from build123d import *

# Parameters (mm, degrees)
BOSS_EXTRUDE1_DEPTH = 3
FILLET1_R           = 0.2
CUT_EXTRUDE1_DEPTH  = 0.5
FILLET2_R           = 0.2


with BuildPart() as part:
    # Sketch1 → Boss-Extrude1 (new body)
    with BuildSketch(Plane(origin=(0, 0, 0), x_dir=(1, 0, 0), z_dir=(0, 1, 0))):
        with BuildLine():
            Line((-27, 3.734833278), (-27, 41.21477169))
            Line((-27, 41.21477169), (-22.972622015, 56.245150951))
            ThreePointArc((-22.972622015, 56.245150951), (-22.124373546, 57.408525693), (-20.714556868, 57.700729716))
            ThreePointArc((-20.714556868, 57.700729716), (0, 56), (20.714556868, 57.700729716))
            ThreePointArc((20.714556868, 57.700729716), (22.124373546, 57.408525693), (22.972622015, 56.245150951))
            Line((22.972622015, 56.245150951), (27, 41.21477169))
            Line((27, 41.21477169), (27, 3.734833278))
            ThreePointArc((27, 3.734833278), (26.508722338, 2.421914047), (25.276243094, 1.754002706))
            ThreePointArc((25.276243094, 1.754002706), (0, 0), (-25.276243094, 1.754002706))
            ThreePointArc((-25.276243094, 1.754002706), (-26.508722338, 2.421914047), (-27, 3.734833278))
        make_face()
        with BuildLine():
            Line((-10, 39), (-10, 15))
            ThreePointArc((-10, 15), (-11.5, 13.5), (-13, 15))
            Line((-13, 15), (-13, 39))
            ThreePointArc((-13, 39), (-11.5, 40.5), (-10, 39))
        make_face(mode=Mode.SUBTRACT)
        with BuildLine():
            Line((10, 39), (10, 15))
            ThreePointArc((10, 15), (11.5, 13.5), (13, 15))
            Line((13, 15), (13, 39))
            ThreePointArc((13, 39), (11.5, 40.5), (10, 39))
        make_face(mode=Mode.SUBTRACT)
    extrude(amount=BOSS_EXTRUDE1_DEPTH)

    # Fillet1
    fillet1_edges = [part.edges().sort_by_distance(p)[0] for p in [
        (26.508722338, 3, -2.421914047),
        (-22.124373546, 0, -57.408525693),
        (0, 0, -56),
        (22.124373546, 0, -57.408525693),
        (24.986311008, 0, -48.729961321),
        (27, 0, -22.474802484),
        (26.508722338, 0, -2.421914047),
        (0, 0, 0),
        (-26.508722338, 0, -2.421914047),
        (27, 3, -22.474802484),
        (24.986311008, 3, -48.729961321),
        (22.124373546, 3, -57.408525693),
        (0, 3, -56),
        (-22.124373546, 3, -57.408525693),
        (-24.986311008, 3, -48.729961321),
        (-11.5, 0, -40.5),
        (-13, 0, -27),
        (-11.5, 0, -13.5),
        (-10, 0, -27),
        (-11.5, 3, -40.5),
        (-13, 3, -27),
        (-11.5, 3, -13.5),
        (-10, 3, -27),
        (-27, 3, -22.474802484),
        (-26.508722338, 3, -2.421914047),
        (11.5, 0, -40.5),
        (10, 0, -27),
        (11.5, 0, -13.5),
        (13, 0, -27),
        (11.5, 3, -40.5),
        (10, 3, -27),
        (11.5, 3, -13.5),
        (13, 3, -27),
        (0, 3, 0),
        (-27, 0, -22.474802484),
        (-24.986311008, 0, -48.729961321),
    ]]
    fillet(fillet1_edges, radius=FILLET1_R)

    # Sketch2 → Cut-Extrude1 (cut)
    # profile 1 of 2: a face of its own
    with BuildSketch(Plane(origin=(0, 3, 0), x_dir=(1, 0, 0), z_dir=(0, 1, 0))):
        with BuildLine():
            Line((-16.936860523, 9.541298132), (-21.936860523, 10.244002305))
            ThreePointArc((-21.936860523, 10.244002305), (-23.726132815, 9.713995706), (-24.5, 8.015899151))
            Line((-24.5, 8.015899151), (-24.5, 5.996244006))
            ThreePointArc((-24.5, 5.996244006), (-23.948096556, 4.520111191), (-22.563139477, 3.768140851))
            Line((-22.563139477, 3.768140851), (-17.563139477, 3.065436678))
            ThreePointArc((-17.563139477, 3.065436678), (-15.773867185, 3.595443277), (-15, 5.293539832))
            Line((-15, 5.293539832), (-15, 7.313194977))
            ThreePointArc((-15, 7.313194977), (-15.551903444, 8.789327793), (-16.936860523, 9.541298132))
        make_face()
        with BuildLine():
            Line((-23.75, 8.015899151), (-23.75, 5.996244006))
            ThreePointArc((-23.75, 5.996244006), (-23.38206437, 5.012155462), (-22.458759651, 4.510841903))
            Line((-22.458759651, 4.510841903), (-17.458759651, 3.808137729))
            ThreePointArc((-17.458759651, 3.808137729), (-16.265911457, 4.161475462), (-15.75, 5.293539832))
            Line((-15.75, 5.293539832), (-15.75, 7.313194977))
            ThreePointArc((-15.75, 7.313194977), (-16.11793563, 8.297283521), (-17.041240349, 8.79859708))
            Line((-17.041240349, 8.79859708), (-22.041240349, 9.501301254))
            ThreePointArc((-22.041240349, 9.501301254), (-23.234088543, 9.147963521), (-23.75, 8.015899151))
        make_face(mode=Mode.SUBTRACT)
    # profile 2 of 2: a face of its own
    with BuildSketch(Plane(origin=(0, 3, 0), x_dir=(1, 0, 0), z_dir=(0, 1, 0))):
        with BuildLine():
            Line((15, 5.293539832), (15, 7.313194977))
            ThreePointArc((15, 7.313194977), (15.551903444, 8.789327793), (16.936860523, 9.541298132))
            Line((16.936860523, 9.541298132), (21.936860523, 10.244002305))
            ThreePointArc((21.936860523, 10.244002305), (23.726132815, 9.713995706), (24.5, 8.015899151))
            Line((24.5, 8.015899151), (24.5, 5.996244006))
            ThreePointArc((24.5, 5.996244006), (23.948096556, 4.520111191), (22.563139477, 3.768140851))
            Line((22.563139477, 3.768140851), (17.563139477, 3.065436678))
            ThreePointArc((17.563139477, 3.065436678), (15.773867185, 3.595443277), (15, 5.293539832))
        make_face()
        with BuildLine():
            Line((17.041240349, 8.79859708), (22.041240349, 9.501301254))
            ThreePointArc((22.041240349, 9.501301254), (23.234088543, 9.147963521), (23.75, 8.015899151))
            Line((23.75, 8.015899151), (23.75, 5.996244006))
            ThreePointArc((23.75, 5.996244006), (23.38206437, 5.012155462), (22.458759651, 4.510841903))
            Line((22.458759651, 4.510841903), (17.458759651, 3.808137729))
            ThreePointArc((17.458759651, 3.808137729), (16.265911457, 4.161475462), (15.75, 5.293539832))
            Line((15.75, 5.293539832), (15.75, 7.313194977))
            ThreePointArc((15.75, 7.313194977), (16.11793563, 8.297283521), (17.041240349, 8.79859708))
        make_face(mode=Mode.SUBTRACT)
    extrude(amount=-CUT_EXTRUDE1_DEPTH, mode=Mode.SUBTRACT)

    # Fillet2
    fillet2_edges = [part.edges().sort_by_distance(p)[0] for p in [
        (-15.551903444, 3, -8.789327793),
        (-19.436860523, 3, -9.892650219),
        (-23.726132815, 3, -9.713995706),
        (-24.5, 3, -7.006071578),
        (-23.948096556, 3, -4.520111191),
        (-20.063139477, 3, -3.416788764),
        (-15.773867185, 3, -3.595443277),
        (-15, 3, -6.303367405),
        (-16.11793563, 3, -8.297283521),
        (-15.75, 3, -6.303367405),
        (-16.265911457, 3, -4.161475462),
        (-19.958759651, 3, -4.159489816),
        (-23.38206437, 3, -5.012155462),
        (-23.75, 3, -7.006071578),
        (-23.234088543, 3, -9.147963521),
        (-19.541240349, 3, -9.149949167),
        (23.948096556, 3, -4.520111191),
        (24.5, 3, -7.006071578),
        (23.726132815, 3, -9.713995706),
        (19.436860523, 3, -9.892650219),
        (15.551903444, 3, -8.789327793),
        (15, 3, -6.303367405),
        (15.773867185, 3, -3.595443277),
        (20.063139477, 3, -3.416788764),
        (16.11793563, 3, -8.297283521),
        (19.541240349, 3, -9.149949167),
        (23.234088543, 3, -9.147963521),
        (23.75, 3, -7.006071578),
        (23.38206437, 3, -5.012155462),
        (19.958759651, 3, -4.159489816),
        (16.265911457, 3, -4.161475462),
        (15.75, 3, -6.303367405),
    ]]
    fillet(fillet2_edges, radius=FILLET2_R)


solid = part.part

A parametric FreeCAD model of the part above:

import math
import FreeCAD as App
import Part
import Sketcher
from FreeCAD import Vector
Q = App.Units.Quantity


def edges_at(feature, points):
    """Names of the edges that pass closest to the given points."""
    edges = feature.Shape.Edges
    near = lambda p: min(range(len(edges)), key=lambda i: edges[i].distToShape(Part.Vertex(*p))[0])
    return sorted({f"Edge{near(p) + 1}" for p in points})

doc = App.newDocument("Part")
body = doc.addObject("PartDesign::Body", "Body")

sketch1 = body.newObject("Sketcher::SketchObject", "Sketch")
sketch1.AttachmentSupport = (doc.getObject("XZ_Plane"), [""])
sketch1.MapMode = "FlatFace"
sketch1.addGeometry([
    Part.LineSegment(Vector(-27, -41.214772, 0), Vector(-27, -3.734833, 0)),
    Part.ArcOfCircle(Part.Circle(Vector(-25, -3.734833, 0), Vector(0, 0, 1), 2), math.radians(97.939163), math.radians(180)),
    Part.ArcOfCircle(Part.Circle(Vector(0, -183, 0), Vector(0, 0, 1), 183), math.radians(82.060837), math.radians(97.939163)),
    Part.ArcOfCircle(Part.Circle(Vector(25, -3.734833, 0), Vector(0, 0, 1), 2), math.radians(0), math.radians(82.060837)),
    Part.LineSegment(Vector(27, -3.734833, 0), Vector(27, -41.214772, 0)),
    Part.LineSegment(Vector(27, -41.214772, 0), Vector(22.972622, -56.245151, 0)),
    Part.ArcOfCircle(Part.Circle(Vector(21.04077, -55.727513, 0), Vector(0, 0, 1), 2), math.radians(-99.387269), math.radians(-15)),
    Part.ArcOfCircle(Part.Circle(Vector(0, -183, 0), Vector(0, 0, 1), 127), math.radians(80.612731), math.radians(99.387269)),
    Part.ArcOfCircle(Part.Circle(Vector(-21.04077, -55.727513, 0), Vector(0, 0, 1), 2), math.radians(-165), math.radians(-80.612731)),
    Part.LineSegment(Vector(-22.972622, -56.245151, 0), Vector(-27, -41.214772, 0)),
    Part.ArcOfCircle(Part.Circle(Vector(11.5, -39, 0), Vector(0, 0, 1), 1.5), math.radians(180), math.radians(360)),
    Part.LineSegment(Vector(13, -39, 0), Vector(13, -15, 0)),
    Part.ArcOfCircle(Part.Circle(Vector(11.5, -15, 0), Vector(0, 0, 1), 1.5), math.radians(0), math.radians(180)),
    Part.LineSegment(Vector(10, -15, 0), Vector(10, -39, 0)),
    Part.LineSegment(Vector(-10, -39, 0), Vector(-10, -15, 0)),
    Part.ArcOfCircle(Part.Circle(Vector(-11.5, -15, 0), Vector(0, 0, 1), 1.5), math.radians(0), math.radians(180)),
    Part.LineSegment(Vector(-13, -15, 0), Vector(-13, -39, 0)),
    Part.ArcOfCircle(Part.Circle(Vector(-11.5, -39, 0), Vector(0, 0, 1), 1.5), math.radians(180), math.radians(360)),
], False)
sketch1.addConstraint([
    Sketcher.Constraint("Tangent", 0, 2, 1, 2),
    Sketcher.Constraint("Tangent", 1, 1, 2, 2),
    Sketcher.Constraint("Tangent", 2, 1, 3, 2),
    Sketcher.Constraint("Tangent", 3, 1, 4, 1),
    Sketcher.Constraint("Coincident", 4, 2, 5, 1),
    Sketcher.Constraint("Tangent", 5, 2, 6, 2),
    Sketcher.Constraint("Tangent", 6, 1, 7, 1),
    Sketcher.Constraint("Tangent", 7, 2, 8, 2),
    Sketcher.Constraint("Tangent", 8, 1, 9, 1),
    Sketcher.Constraint("Coincident", 9, 2, 0, 1),
    Sketcher.Constraint("Tangent", 10, 2, 11, 1),
    Sketcher.Constraint("Tangent", 11, 2, 12, 1),
    Sketcher.Constraint("Tangent", 12, 2, 13, 1),
    Sketcher.Constraint("Tangent", 13, 2, 10, 1),
    Sketcher.Constraint("Tangent", 14, 2, 15, 1),
    Sketcher.Constraint("Tangent", 15, 2, 16, 1),
    Sketcher.Constraint("Tangent", 16, 2, 17, 1),
    Sketcher.Constraint("Tangent", 17, 2, 14, 1),
    Sketcher.Constraint("Vertical", 0),
    Sketcher.Constraint("Vertical", 4),
    Sketcher.Constraint("Vertical", 11),
    Sketcher.Constraint("Vertical", 13),
    Sketcher.Constraint("Vertical", 14),
    Sketcher.Constraint("Vertical", 16),
    Sketcher.Constraint("Coincident", 7, 3, 2, 3),
    Sketcher.Constraint("Equal", 1, 3),
    Sketcher.Constraint("Equal", 3, 6),
    Sketcher.Constraint("Equal", 6, 8),
    Sketcher.Constraint("Equal", 12, 15),
    Sketcher.Constraint("Symmetric", 1, 3, 3, 3, -2),
    Sketcher.Constraint("Symmetric", 12, 3, 15, 3, -2),
    Sketcher.Constraint("Symmetric", 5, 2, 8, 1, -2),
    Sketcher.Constraint("Horizontal", 10, 3, 17, 3),
    Sketcher.Constraint("Radius", 1, Q("2 mm")),
    Sketcher.Constraint("Radius", 2, Q("183 mm")),
    Sketcher.Constraint("Radius", 7, Q("127 mm")),
    Sketcher.Constraint("Radius", 10, Q("1.5 mm")),
    Sketcher.Constraint("DistanceY", 11, 1, 11, 2, Q("24 mm")),
    Sketcher.Constraint("Angle", 5, Q("-105 deg")),
    Sketcher.Constraint("DistanceX", 1, 3, -1, 1, Q("25 mm")),
    Sketcher.Constraint("DistanceY", 2, 3, -1, 1, Q("183 mm")),
    Sketcher.Constraint("DistanceY", 10, 3, -1, 1, Q("39 mm")),
    Sketcher.Constraint("DistanceX", -1, 1, 10, 2, Q("13 mm")),
    Sketcher.Constraint("DistanceY", 0, 1, 0, 2, Q("37.479938 mm")),
])
pad1 = body.newObject("PartDesign::Pad", "Pad")
pad1.Profile = sketch1
pad1.Length = 3
pad1.Reversed = True
doc.recompute()

fillet = body.newObject("PartDesign::Fillet", "Fillet")
fillet.Base = (pad1, edges_at(pad1, [
    (26.509, 3, -2.422),
    (-22.124, 0, -57.409),
    (0, 0, -56),
    (22.124, 0, -57.409),
    (24.986, 0, -48.73),
    (27, 0, -22.475),
    (26.509, 0, -2.422),
    (0, 0, 0),
    (-26.509, 0, -2.422),
    (27, 3, -22.475),
    (24.986, 3, -48.73),
    (22.124, 3, -57.409),
    (0, 3, -56),
    (-22.124, 3, -57.409),
    (-24.986, 3, -48.73),
    (-11.5, 0, -40.5),
    (-13, 0, -27),
    (-11.5, 0, -13.5),
    (-10, 0, -27),
    (-11.5, 3, -40.5),
    (-13, 3, -27),
    (-11.5, 3, -13.5),
    (-10, 3, -27),
    (-27, 3, -22.475),
    (-26.509, 3, -2.422),
    (11.5, 0, -40.5),
    (10, 0, -27),
    (11.5, 0, -13.5),
    (13, 0, -27),
    (11.5, 3, -40.5),
    (10, 3, -27),
    (11.5, 3, -13.5),
    (13, 3, -27),
    (0, 3, 0),
    (-27, 0, -22.475),
    (-24.986, 0, -48.73),
]))
fillet.Radius = 0.2

sketch2 = body.newObject("Sketcher::SketchObject", "Sketch001")
sketch2.AttachmentSupport = (doc.getObject("XZ_Plane"), [""])
sketch2.MapMode = "FlatFace"
sketch2.AttachmentOffset = App.Placement(Vector(0, 0, -3), App.Rotation())
sketch2.addGeometry([
    Part.LineSegment(Vector(-16.936861, -9.541298, 0), Vector(-21.936861, -10.244002, 0)),
    Part.ArcOfCircle(Part.Circle(Vector(-22.25, -8.015899, 0), Vector(0, 0, 1), 2.25), math.radians(-180), math.radians(-82)),
    Part.LineSegment(Vector(-24.5, -8.015899, 0), Vector(-24.5, -5.996244, 0)),
    Part.ArcOfCircle(Part.Circle(Vector(-22.25, -5.996244, 0), Vector(0, 0, 1), 2.25), math.radians(98), math.radians(180)),
    Part.LineSegment(Vector(-22.563139, -3.768141, 0), Vector(-17.563139, -3.065437, 0)),
    Part.ArcOfCircle(Part.Circle(Vector(-17.25, -5.29354, 0), Vector(0, 0, 1), 2.25), math.radians(0), math.radians(98)),
    Part.LineSegment(Vector(-15, -5.29354, 0), Vector(-15, -7.313195, 0)),
    Part.ArcOfCircle(Part.Circle(Vector(-17.25, -7.313195, 0), Vector(0, 0, 1), 2.25), math.radians(-82), math.radians(0)),
    Part.LineSegment(Vector(-23.75, -5.996244, 0), Vector(-23.75, -8.015899, 0)),
    Part.ArcOfCircle(Part.Circle(Vector(-22.25, -8.015899, 0), Vector(0, 0, 1), 1.5), math.radians(-180), math.radians(-82)),
    Part.LineSegment(Vector(-22.04124, -9.501301, 0), Vector(-17.04124, -8.798597, 0)),
    Part.ArcOfCircle(Part.Circle(Vector(-17.25, -7.313195, 0), Vector(0, 0, 1), 1.5), math.radians(-82), math.radians(0)),
    Part.LineSegment(Vector(-15.75, -7.313195, 0), Vector(-15.75, -5.29354, 0)),
    Part.ArcOfCircle(Part.Circle(Vector(-17.25, -5.29354, 0), Vector(0, 0, 1), 1.5), math.radians(0), math.radians(98)),
    Part.LineSegment(Vector(-17.45876, -3.808138, 0), Vector(-22.45876, -4.510842, 0)),
    Part.ArcOfCircle(Part.Circle(Vector(-22.25, -5.996244, 0), Vector(0, 0, 1), 1.5), math.radians(98), math.radians(180)),
    Part.LineSegment(Vector(15, -7.313195, 0), Vector(15, -5.29354, 0)),
    Part.ArcOfCircle(Part.Circle(Vector(17.25, -5.29354, 0), Vector(0, 0, 1), 2.25), math.radians(82), math.radians(180)),
    Part.LineSegment(Vector(17.563139, -3.065437, 0), Vector(22.563139, -3.768141, 0)),
    Part.ArcOfCircle(Part.Circle(Vector(22.25, -5.996244, 0), Vector(0, 0, 1), 2.25), math.radians(0), math.radians(82)),
    Part.LineSegment(Vector(24.5, -5.996244, 0), Vector(24.5, -8.015899, 0)),
    Part.ArcOfCircle(Part.Circle(Vector(22.25, -8.015899, 0), Vector(0, 0, 1), 2.25), math.radians(-98), math.radians(0)),
    Part.LineSegment(Vector(21.936861, -10.244002, 0), Vector(16.936861, -9.541298, 0)),
    Part.ArcOfCircle(Part.Circle(Vector(17.25, -7.313195, 0), Vector(0, 0, 1), 2.25), math.radians(180), math.radians(262)),
    Part.LineSegment(Vector(17.04124, -8.798597, 0), Vector(22.04124, -9.501301, 0)),
    Part.ArcOfCircle(Part.Circle(Vector(22.25, -8.015899, 0), Vector(0, 0, 1), 1.5), math.radians(-98), math.radians(0)),
    Part.LineSegment(Vector(23.75, -8.015899, 0), Vector(23.75, -5.996244, 0)),
    Part.ArcOfCircle(Part.Circle(Vector(22.25, -5.996244, 0), Vector(0, 0, 1), 1.5), math.radians(0), math.radians(82)),
    Part.LineSegment(Vector(22.45876, -4.510842, 0), Vector(17.45876, -3.808138, 0)),
    Part.ArcOfCircle(Part.Circle(Vector(17.25, -5.29354, 0), Vector(0, 0, 1), 1.5), math.radians(82), math.radians(180)),
    Part.LineSegment(Vector(15.75, -5.29354, 0), Vector(15.75, -7.313195, 0)),
    Part.ArcOfCircle(Part.Circle(Vector(17.25, -7.313195, 0), Vector(0, 0, 1), 1.5), math.radians(180), math.radians(262)),
], False)
sketch2.addConstraint([
    Sketcher.Constraint("Tangent", 0, 2, 1, 2),
    Sketcher.Constraint("Tangent", 1, 1, 2, 1),
    Sketcher.Constraint("Tangent", 2, 2, 3, 2),
    Sketcher.Constraint("Tangent", 3, 1, 4, 1),
    Sketcher.Constraint("Tangent", 4, 2, 5, 2),
    Sketcher.Constraint("Tangent", 5, 1, 6, 1),
    Sketcher.Constraint("Tangent", 6, 2, 7, 2),
    Sketcher.Constraint("Tangent", 7, 1, 0, 1),
    Sketcher.Constraint("Tangent", 8, 2, 9, 1),
    Sketcher.Constraint("Tangent", 9, 2, 10, 1),
    Sketcher.Constraint("Tangent", 10, 2, 11, 1),
    Sketcher.Constraint("Tangent", 11, 2, 12, 1),
    Sketcher.Constraint("Tangent", 12, 2, 13, 1),
    Sketcher.Constraint("Tangent", 13, 2, 14, 1),
    Sketcher.Constraint("Tangent", 14, 2, 15, 1),
    Sketcher.Constraint("Tangent", 15, 2, 8, 1),
    Sketcher.Constraint("Tangent", 16, 2, 17, 2),
    Sketcher.Constraint("Tangent", 17, 1, 18, 1),
    Sketcher.Constraint("Tangent", 18, 2, 19, 2),
    Sketcher.Constraint("Tangent", 19, 1, 20, 1),
    Sketcher.Constraint("Tangent", 20, 2, 21, 2),
    Sketcher.Constraint("Tangent", 21, 1, 22, 1),
    Sketcher.Constraint("Tangent", 22, 2, 23, 2),
    Sketcher.Constraint("Tangent", 23, 1, 16, 1),
    Sketcher.Constraint("Tangent", 24, 2, 25, 1),
    Sketcher.Constraint("Tangent", 25, 2, 26, 1),
    Sketcher.Constraint("Tangent", 26, 2, 27, 1),
    Sketcher.Constraint("Tangent", 27, 2, 28, 1),
    Sketcher.Constraint("Tangent", 28, 2, 29, 1),
    Sketcher.Constraint("Tangent", 29, 2, 30, 1),
    Sketcher.Constraint("Tangent", 30, 2, 31, 1),
    Sketcher.Constraint("Tangent", 31, 2, 24, 1),
    Sketcher.Constraint("Vertical", 2),
    Sketcher.Constraint("Vertical", 6),
    Sketcher.Constraint("Vertical", 8),
    Sketcher.Constraint("Vertical", 12),
    Sketcher.Constraint("Vertical", 16),
    Sketcher.Constraint("Vertical", 20),
    Sketcher.Constraint("Vertical", 26),
    Sketcher.Constraint("Vertical", 30),
    Sketcher.Constraint("Coincident", 9, 3, 1, 3),
    Sketcher.Constraint("Coincident", 11, 3, 7, 3),
    Sketcher.Constraint("Coincident", 13, 3, 5, 3),
    Sketcher.Constraint("Coincident", 15, 3, 3, 3),
    Sketcher.Constraint("Coincident", 25, 3, 21, 3),
    Sketcher.Constraint("Coincident", 27, 3, 19, 3),
    Sketcher.Constraint("Coincident", 29, 3, 17, 3),
    Sketcher.Constraint("Coincident", 31, 3, 23, 3),
    Sketcher.Constraint("Equal", 1, 3),
    Sketcher.Constraint("Equal", 3, 5),
    Sketcher.Constraint("Equal", 5, 7),
    Sketcher.Constraint("Equal", 9, 11),
    Sketcher.Constraint("Equal", 7, 17),
    Sketcher.Constraint("Equal", 17, 19),
    Sketcher.Constraint("Equal", 19, 21),
    Sketcher.Constraint("Equal", 21, 23),
    Sketcher.Constraint("Equal", 15, 25),
    Sketcher.Constraint("Equal", 27, 29),
    Sketcher.Constraint("Symmetric", 5, 3, 17, 3, -2),
    Sketcher.Constraint("Symmetric", 3, 3, 19, 3, -2),
    Sketcher.Constraint("Symmetric", 0, 2, 21, 1, -2),
    Sketcher.Constraint("Parallel", 0, 4),
    Sketcher.Constraint("Radius", 9, Q("1.5 mm")),
    Sketcher.Constraint("Angle", 0, Q("-172 deg")),
    Sketcher.Constraint("Radius", 1, Q("2.25 mm")),
    Sketcher.Constraint("DistanceX", 5, 1, -1, 1, Q("15 mm")),
    Sketcher.Constraint("DistanceX", 3, 3, 5, 3, Q("5 mm")),
    Sketcher.Constraint("DistanceY", 1, 3, -1, 1, Q("8.015899 mm")),
    Sketcher.Constraint("DistanceY", 2, 1, 2, 2, Q("2.019655 mm")),
])
pocket1 = body.newObject("PartDesign::Pocket", "Pocket")
pocket1.Profile = sketch2
pocket1.Length = 0.5
pocket1.Reversed = True
doc.recompute()

fillet2 = body.newObject("PartDesign::Fillet", "Fillet001")
fillet2.Base = (pocket1, edges_at(pocket1, [
    (-15.552, 3, -8.789),
    (-19.437, 3, -9.893),
    (-23.726, 3, -9.714),
    (-24.5, 3, -7.006),
    (-23.948, 3, -4.52),
    (-20.063, 3, -3.417),
    (-15.774, 3, -3.595),
    (-15, 3, -6.303),
    (-16.118, 3, -8.297),
    (-15.75, 3, -6.303),
    (-16.266, 3, -4.161),
    (-19.959, 3, -4.159),
    (-23.382, 3, -5.012),
    (-23.75, 3, -7.006),
    (-23.234, 3, -9.148),
    (-19.541, 3, -9.15),
    (23.948, 3, -4.52),
    (24.5, 3, -7.006),
    (23.726, 3, -9.714),
    (19.437, 3, -9.893),
    (15.552, 3, -8.789),
    (15, 3, -6.303),
    (15.774, 3, -3.595),
    (20.063, 3, -3.417),
    (16.118, 3, -8.297),
    (19.541, 3, -9.15),
    (23.234, 3, -9.148),
    (23.75, 3, -7.006),
    (23.382, 3, -5.012),
    (19.959, 3, -4.159),
    (16.266, 3, -4.161),
    (15.75, 3, -6.303),
]))
fillet2.Radius = 0.2

doc.recompute()
